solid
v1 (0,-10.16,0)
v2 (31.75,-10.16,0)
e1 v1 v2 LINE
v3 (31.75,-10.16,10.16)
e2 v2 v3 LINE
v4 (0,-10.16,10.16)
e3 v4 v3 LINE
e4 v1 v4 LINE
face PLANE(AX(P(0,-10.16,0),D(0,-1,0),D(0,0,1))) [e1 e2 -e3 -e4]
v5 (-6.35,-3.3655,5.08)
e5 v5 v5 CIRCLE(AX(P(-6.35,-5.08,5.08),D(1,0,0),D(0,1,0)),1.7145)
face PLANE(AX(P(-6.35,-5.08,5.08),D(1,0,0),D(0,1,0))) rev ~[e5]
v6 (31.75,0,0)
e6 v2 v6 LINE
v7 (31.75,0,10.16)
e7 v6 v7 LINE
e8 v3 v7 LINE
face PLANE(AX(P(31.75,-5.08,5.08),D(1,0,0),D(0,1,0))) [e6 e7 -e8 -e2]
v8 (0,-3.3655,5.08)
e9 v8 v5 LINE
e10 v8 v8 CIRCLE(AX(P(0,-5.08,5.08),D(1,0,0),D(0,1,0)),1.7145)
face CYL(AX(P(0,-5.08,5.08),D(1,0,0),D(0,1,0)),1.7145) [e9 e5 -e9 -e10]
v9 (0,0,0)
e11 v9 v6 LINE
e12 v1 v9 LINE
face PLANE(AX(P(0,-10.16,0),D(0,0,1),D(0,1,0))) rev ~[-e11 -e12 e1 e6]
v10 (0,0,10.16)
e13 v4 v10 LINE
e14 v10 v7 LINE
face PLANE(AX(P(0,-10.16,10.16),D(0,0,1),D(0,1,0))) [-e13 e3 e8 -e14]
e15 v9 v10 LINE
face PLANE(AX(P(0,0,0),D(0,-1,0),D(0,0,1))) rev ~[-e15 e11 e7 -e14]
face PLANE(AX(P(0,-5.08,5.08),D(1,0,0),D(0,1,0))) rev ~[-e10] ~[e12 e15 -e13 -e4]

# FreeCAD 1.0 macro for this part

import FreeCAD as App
import Part
import Sketcher

V = App.Vector
Q = App.Units.Quantity


def add_polygon(sketch, points):
    """Adds a closed chain of lines whose ends are joined by coincident constraints."""
    first, n = sketch.GeometryCount, len(points)
    for a, b in zip(points, points[1:] + points[:1]):
        sketch.addGeometry(Part.LineSegment(App.Vector(*a, 0), App.Vector(*b, 0)), False)
    for i in range(n):
        sketch.addConstraint(Sketcher.Constraint("Coincident", first + i, 2, first + (i + 1) % n, 1))

doc = App.newDocument("Part")
body = doc.addObject("PartDesign::Body", "Body")

# Sketch on YZ plane
sketch1 = body.newObject("Sketcher::SketchObject", "Sketch")
sketch1.AttachmentSupport = (doc.getObject("YZ_Plane"), [""])
sketch1.MapMode = "FlatFace"
add_polygon(sketch1, [(-10, 10), (-10, 0), (0, 0), (0, 10)])  # lines 0-3
sketch1.addConstraint([
    Sketcher.Constraint("Vertical", 0),
    Sketcher.Constraint("Horizontal", 1),
    Sketcher.Constraint("Vertical", 2),
    Sketcher.Constraint("Horizontal", 3),
    Sketcher.Constraint("Coincident", 1, 2, -1, 1),
    Sketcher.Constraint("Equal", 3, 0),
    Sketcher.Constraint("DistanceX", 1, 1, 1, 2, Q("0.4 in")),
])
pad1 = body.newObject("PartDesign::Pad", "Pad")
pad1.Profile = sketch1
pad1.Length = Q("1.25 in")

# Sketch on YZ plane
sketch2 = body.newObject("Sketcher::SketchObject", "Sketch001")
sketch2.AttachmentSupport = (doc.getObject("YZ_Plane"), [""])
sketch2.MapMode = "FlatFace"
sketch2.addGeometry(Part.Circle(V(-5.1, 5.1, 0), V(0, 0, 1), 1.7), False)
sketch2.addConstraint([
    Sketcher.Constraint("Diameter", 0, Q("0.135 in")),
    Sketcher.Constraint("DistanceX", 0, 3, -1, 1, Q("0.2 in")),
    Sketcher.Constraint("DistanceY", -1, 1, 0, 3, Q("0.2 in")),
])
pad2 = body.newObject("PartDesign::Pad", "Pad001")
pad2.Profile = sketch2
pad2.Length = Q("0.25 in")
pad2.Reversed = True

doc.recompute()
